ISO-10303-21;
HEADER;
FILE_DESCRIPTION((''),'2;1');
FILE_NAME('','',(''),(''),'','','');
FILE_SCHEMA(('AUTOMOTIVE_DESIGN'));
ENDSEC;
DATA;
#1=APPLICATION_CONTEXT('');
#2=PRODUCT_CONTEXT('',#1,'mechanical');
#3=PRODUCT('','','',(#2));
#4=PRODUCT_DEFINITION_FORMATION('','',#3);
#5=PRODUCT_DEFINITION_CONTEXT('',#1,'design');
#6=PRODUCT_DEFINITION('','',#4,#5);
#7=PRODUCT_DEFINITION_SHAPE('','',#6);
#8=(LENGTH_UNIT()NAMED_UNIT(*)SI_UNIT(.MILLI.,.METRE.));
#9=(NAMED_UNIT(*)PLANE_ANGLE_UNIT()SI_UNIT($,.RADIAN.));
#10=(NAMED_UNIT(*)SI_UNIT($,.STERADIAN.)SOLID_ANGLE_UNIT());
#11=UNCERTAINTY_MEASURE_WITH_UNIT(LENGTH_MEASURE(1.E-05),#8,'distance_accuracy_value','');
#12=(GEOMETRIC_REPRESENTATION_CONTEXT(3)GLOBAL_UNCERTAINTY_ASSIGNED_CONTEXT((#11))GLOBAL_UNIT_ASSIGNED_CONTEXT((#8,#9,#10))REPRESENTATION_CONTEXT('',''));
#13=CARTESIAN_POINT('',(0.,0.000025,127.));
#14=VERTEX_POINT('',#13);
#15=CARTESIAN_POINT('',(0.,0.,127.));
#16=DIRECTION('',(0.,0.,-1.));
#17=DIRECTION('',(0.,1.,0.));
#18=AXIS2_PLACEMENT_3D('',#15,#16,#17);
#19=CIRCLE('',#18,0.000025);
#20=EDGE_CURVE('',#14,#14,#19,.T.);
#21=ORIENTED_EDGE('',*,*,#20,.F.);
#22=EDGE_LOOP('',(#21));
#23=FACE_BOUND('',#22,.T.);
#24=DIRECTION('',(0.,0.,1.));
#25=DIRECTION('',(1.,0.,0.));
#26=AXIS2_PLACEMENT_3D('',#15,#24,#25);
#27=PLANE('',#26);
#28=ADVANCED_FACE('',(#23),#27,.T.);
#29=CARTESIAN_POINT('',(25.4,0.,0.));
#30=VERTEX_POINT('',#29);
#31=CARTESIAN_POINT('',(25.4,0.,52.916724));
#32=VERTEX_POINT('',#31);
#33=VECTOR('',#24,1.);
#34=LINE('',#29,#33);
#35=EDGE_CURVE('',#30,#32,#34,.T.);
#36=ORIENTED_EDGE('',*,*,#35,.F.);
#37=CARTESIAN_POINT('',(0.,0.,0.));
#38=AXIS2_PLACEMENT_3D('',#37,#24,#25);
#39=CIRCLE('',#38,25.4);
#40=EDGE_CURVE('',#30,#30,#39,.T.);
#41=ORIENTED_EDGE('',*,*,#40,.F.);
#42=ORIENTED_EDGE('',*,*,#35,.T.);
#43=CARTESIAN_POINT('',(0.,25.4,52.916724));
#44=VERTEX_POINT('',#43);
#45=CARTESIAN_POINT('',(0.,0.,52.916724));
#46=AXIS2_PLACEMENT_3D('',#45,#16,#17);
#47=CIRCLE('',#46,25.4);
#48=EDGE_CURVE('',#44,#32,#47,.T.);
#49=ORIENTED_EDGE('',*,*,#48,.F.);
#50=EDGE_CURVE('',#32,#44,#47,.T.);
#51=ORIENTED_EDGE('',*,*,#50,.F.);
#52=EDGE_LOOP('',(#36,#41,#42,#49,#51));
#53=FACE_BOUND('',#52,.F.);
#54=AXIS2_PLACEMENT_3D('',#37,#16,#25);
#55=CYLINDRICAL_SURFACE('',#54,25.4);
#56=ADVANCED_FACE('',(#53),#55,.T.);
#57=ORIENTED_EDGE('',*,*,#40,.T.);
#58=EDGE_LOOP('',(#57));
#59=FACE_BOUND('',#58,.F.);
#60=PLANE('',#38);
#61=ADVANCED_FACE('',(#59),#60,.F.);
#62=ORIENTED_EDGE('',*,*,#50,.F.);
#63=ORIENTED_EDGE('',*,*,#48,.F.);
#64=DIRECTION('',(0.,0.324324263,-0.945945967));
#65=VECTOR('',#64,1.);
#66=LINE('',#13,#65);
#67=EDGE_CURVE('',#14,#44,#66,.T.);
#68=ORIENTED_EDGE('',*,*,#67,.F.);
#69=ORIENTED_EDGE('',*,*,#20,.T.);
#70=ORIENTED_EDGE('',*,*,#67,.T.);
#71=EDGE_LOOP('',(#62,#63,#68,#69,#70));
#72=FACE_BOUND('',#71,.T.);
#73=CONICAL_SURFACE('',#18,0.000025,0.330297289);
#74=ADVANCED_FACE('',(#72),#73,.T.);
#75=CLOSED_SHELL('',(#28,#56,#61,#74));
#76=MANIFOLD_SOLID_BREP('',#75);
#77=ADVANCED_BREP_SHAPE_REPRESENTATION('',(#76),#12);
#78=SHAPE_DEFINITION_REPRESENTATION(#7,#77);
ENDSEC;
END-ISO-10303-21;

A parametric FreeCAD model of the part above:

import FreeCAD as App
import Part
import Sketcher

V = App.Vector
Q = App.Units.Quantity


def add_polygon(sketch, points):
    """Adds a closed chain of lines whose ends are joined by coincident constraints."""
    first, n = sketch.GeometryCount, len(points)
    for a, b in zip(points, points[1:] + points[:1]):
        sketch.addGeometry(Part.LineSegment(App.Vector(*a, 0), App.Vector(*b, 0)), False)
    for i in range(n):
        sketch.addConstraint(Sketcher.Constraint("Coincident", first + i, 2, first + (i + 1) % n, 1))

doc = App.newDocument("Part")
body = doc.addObject("PartDesign::Body", "Body")

# Sketch on XY plane
sketch1 = body.newObject("Sketcher::SketchObject", "Sketch")
sketch1.AttachmentSupport = (doc.getObject("XY_Plane"), [""])
sketch1.MapMode = "FlatFace"
sketch1.addGeometry(Part.Circle(V(0, 0, 0), V(0, 0, 1), 25), False)
sketch1.addConstraint(Sketcher.Constraint("Coincident", 0, 3, -1, 1))
sketch1.addConstraint(Sketcher.Constraint("Diameter", 0, Q("2 in")))
pad1 = body.newObject("PartDesign::Pad", "Pad")
pad1.Profile = sketch1
pad1.Length = Q("5 in")

# Sketch on YZ plane
sketch2 = body.newObject("Sketcher::SketchObject", "Sketch001")
sketch2.AttachmentSupport = (doc.getObject("YZ_Plane"), [""])
sketch2.MapMode = "FlatFace"
add_polygon(sketch2, [(33, 127), (0, 127), (30, 39)])  # lines 0-2
sketch2.addConstraint(Sketcher.Constraint("Horizontal", 0))
sketch2.addConstraint(Sketcher.Constraint("DistanceY", -1, 1, 0, 2, Q("5 in")))
sketch2.addConstraint(Sketcher.Constraint("Distance", 1, Q("93.056821 mm")))
sketch2.addConstraint(Sketcher.Constraint("Distance", 2, Q("88.068881 mm")))
sketch2.addConstraint(Sketcher.Constraint("DistanceX", 0, 2, 0, 1, Q("32.905203 mm")))
sketch2.addConstraint(Sketcher.Constraint("DistanceX", -1, 1, 1, 2, Q("30.18061 mm")))
groove = body.newObject("PartDesign::Groove", "Groove")
groove.Profile = sketch2
groove.ReferenceAxis = (sketch2, ["V_Axis"])
groove.Angle = 360

doc.recompute()
